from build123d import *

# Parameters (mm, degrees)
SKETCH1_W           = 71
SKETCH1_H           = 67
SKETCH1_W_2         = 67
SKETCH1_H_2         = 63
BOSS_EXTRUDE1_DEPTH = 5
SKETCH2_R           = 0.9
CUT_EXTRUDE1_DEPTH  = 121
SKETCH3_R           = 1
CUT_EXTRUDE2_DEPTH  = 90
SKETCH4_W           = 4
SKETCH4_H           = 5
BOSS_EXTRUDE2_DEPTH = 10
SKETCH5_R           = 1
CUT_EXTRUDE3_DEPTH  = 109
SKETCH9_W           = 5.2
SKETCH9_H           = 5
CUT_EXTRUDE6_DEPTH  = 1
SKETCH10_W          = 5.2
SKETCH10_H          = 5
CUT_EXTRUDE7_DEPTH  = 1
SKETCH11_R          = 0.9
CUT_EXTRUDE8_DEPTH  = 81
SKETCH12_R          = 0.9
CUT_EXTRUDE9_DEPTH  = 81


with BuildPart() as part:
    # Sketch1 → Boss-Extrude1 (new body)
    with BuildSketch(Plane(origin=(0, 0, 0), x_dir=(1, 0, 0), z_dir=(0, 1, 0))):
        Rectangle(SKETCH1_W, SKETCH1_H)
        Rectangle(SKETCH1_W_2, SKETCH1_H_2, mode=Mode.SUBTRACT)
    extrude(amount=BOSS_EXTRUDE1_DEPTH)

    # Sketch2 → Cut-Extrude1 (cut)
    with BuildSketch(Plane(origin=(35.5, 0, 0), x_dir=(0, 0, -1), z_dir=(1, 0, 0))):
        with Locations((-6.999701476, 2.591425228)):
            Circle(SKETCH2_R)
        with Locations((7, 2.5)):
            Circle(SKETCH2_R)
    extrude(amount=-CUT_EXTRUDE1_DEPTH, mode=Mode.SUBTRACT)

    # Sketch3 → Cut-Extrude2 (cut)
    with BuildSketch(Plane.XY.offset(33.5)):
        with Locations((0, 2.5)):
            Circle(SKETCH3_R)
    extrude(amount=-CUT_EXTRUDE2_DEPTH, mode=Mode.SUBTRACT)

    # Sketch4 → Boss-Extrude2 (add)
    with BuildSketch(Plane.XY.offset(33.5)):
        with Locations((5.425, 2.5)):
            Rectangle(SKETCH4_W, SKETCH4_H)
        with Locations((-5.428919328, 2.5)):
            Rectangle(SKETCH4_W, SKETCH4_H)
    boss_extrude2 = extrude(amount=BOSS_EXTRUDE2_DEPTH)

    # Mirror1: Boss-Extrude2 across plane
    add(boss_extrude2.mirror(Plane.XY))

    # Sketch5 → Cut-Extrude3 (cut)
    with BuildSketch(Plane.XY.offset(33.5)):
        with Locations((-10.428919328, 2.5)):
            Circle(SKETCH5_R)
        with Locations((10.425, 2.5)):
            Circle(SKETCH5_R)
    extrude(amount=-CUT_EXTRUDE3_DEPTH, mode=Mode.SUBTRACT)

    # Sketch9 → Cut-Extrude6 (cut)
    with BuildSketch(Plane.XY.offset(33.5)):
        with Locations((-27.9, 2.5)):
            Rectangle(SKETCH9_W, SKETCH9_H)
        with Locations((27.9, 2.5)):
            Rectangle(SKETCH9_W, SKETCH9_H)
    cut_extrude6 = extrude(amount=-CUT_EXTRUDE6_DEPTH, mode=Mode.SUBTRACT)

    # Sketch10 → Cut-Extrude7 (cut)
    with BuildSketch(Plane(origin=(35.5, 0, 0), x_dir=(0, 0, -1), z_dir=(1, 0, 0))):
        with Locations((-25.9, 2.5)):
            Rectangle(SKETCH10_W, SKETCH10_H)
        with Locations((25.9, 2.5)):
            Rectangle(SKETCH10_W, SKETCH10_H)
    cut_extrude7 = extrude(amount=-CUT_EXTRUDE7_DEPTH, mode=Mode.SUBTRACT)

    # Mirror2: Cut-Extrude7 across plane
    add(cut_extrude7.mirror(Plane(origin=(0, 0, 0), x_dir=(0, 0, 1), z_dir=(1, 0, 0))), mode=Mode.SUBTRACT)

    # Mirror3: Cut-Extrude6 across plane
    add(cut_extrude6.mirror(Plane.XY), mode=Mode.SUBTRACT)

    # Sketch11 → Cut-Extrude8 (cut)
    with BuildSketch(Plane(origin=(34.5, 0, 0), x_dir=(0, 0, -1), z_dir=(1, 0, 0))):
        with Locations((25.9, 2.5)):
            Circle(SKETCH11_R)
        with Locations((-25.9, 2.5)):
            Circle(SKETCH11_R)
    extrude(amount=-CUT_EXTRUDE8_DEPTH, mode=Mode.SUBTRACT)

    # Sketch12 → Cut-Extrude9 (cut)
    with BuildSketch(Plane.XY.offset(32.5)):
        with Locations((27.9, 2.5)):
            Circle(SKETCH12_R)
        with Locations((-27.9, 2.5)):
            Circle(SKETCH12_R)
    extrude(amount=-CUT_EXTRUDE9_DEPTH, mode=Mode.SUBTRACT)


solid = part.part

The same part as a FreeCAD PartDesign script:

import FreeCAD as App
import Part
import Sketcher
from FreeCAD import Vector


def add_polygon(sketch, points):
    """Adds a closed chain of lines whose ends are joined by coincident constraints."""
    first, n = sketch.GeometryCount, len(points)
    for a, b in zip(points, points[1:] + points[:1]):
        sketch.addGeometry(Part.LineSegment(App.Vector(*a, 0), App.Vector(*b, 0)), False)
    for i in range(n):
        sketch.addConstraint(Sketcher.Constraint("Coincident", first + i, 2, first + (i + 1) % n, 1))

doc = App.newDocument("Part")
params = doc.addObject("Spreadsheet::Sheet", "Params")
for row, (alias, value) in enumerate([
    ("sketch1_width", "71 mm"),
    ("sketch1_width2", "67 mm"),
    ("sketch1_height", "63 mm"),
    ("pad1_length", "5 mm"),
    ("sketch2_diameter", "1.8 mm"),
    ("pocket1_length", "121 mm"),
    ("sketch3_diameter", "2 mm"),
    ("pocket2_length", "90 mm"),
    ("sketch4_width", "4 mm"),
    ("sketch4_height", "5 mm"),
    ("pad2_length", "10 mm"),
    ("sketch5_diameter", "2 mm"),
    ("pocket3_length", "109 mm"),
    ("sketch6_height", "5 mm"),
    ("sketch6_width", "5.2 mm"),
    ("pocket4_length", "1 mm"),
    ("sketch7_width", "5 mm"),
    ("sketch7_height", "5.2 mm"),
    ("pocket5_length", "1 mm"),
    ("sketch8_diameter", "1.8 mm"),
    ("pocket6_length", "81 mm"),
    ("sketch9_diameter", "1.8 mm"),
    ("pocket7_length", "81 mm"),
], start=1):
    params.set(f"A{row}", alias)
    params.set(f"B{row}", "=" + value)
    params.setAlias(f"B{row}", alias)

body = doc.addObject("PartDesign::Body", "Body")

# Sketch on XZ plane
sketch1 = body.newObject("Sketcher::SketchObject", "Sketch")
sketch1.AttachmentSupport = (doc.getObject("XZ_Plane"), [""])
sketch1.MapMode = "FlatFace"
add_polygon(sketch1, [(-35.5, -33.5), (-35.5, 33.5), (35.5, 33.5), (35.5, -33.5)])  # lines 0-3
add_polygon(sketch1, [(33.5, 31.5), (-33.5, 31.5), (-33.5, -31.5), (33.5, -31.5)])  # lines 4-7
sketch1.addConstraint(Sketcher.Constraint("Vertical", 0))
sketch1.addConstraint(Sketcher.Constraint("Horizontal", 1))
sketch1.addConstraint(Sketcher.Constraint("Vertical", 2))
sketch1.addConstraint(Sketcher.Constraint("Horizontal", 3))
sketch1.addConstraint(Sketcher.Constraint("Horizontal", 4))
sketch1.addConstraint(Sketcher.Constraint("Vertical", 5))
sketch1.addConstraint(Sketcher.Constraint("Horizontal", 6))
sketch1.addConstraint(Sketcher.Constraint("Vertical", 7))
sketch1.addConstraint(Sketcher.Constraint("Symmetric", 0, 2, 2, 2, -1, 1))
sketch1.addConstraint(Sketcher.Constraint("Symmetric", 4, 2, 6, 2, -1, 1))
sketch1.addConstraint(Sketcher.Constraint("Equal", 6, 0))
sketch1.addConstraint(Sketcher.Constraint("DistanceX", 1, 1, 1, 2, 71.0))
sketch1.addConstraint(Sketcher.Constraint("DistanceX", 4, 2, 4, 1, 67.0))
sketch1.addConstraint(Sketcher.Constraint("DistanceY", 5, 2, 5, 1, 63.0))
sketch1.setExpression("Constraints[19]", "Params.sketch1_width")
sketch1.setExpression("Constraints[20]", "Params.sketch1_width2")
sketch1.setExpression("Constraints[21]", "Params.sketch1_height")
pad1 = body.newObject("PartDesign::Pad", "Pad")
pad1.Profile = sketch1
pad1.setExpression("Length", "Params.pad1_length")
pad1.Reversed = True

# Sketch on YZ plane
sketch2 = body.newObject("Sketcher::SketchObject", "Sketch001")
sketch2.AttachmentSupport = (doc.getObject("YZ_Plane"), [""])
sketch2.MapMode = "FlatFace"
sketch2.AttachmentOffset = App.Placement(Vector(0, 0, 35.5), App.Rotation())
sketch2.addGeometry(Part.Circle(Vector(2.591425, 6.999701, 0), Vector(0, 0, 1), 0.9), False)
sketch2.addGeometry(Part.Circle(Vector(2.5, -7, 0), Vector(0, 0, 1), 0.9), False)
sketch2.addConstraint(Sketcher.Constraint("Equal", 0, 1))
sketch2.addConstraint(Sketcher.Constraint("Diameter", 0, 1.8))
sketch2.addConstraint(Sketcher.Constraint("DistanceY", 1, 3, -1, 1, 7.0))
sketch2.addConstraint(Sketcher.Constraint("DistanceX", -1, 1, 1, 3, 2.5))
sketch2.addConstraint(Sketcher.Constraint("DistanceY", -1, 1, 0, 3, 6.999701))
sketch2.addConstraint(Sketcher.Constraint("DistanceX", -1, 1, 0, 3, 2.591425))
sketch2.setExpression("Constraints[1]", "Params.sketch2_diameter")
pocket1 = body.newObject("PartDesign::Pocket", "Pocket")
pocket1.Profile = sketch2
pocket1.setExpression("Length", "Params.pocket1_length")

# Sketch on XY plane
sketch3 = body.newObject("Sketcher::SketchObject", "Sketch002")
sketch3.AttachmentSupport = (doc.getObject("XY_Plane"), [""])
sketch3.MapMode = "FlatFace"
sketch3.AttachmentOffset = App.Placement(Vector(0, 0, 33.5), App.Rotation())
sketch3.addGeometry(Part.Circle(Vector(0, 2.5, 0), Vector(0, 0, 1), 1), False)
sketch3.addConstraint(Sketcher.Constraint("PointOnObject", 0, 3, -2))
sketch3.addConstraint(Sketcher.Constraint("Diameter", 0, 2.0))
sketch3.addConstraint(Sketcher.Constraint("DistanceY", -1, 1, 0, 3, 2.5))
sketch3.setExpression("Constraints[1]", "Params.sketch3_diameter")
pocket2 = body.newObject("PartDesign::Pocket", "Pocket001")
pocket2.Profile = sketch3
pocket2.setExpression("Length", "Params.pocket2_length")

# Sketch on XY plane
sketch4 = body.newObject("Sketcher::SketchObject", "Sketch003")
sketch4.AttachmentSupport = (doc.getObject("XY_Plane"), [""])
sketch4.MapMode = "FlatFace"
sketch4.AttachmentOffset = App.Placement(Vector(0, 0, 33.5), App.Rotation())
add_polygon(sketch4, [(3.425, 5), (3.425, 0), (7.425, 0), (7.425, 5)])  # lines 0-3
add_polygon(sketch4, [(-7.428919, 5), (-7.428919, 0), (-3.428919, 0), (-3.428919, 5)])  # lines 4-7
sketch4.addConstraint(Sketcher.Constraint("Vertical", 0))
sketch4.addConstraint(Sketcher.Constraint("Horizontal", 1))
sketch4.addConstraint(Sketcher.Constraint("Vertical", 2))
sketch4.addConstraint(Sketcher.Constraint("Horizontal", 3))
sketch4.addConstraint(Sketcher.Constraint("Vertical", 4))
sketch4.addConstraint(Sketcher.Constraint("Horizontal", 5))
sketch4.addConstraint(Sketcher.Constraint("Vertical", 6))
sketch4.addConstraint(Sketcher.Constraint("Horizontal", 7))
sketch4.addConstraint(Sketcher.Constraint("PointOnObject", 0, 2, -1))
sketch4.addConstraint(Sketcher.Constraint("PointOnObject", 4, 2, -1))
sketch4.addConstraint(Sketcher.Constraint("Horizontal", 3, 2, 6, 2))
sketch4.addConstraint(Sketcher.Constraint("Equal", 3, 5))
sketch4.addConstraint(Sketcher.Constraint("DistanceX", 1, 1, 1, 2, 4.0))
sketch4.addConstraint(Sketcher.Constraint("DistanceY", 0, 2, 0, 1, 5.0))
sketch4.addConstraint(Sketcher.Constraint("DistanceX", -1, 1, 0, 2, 3.425))
sketch4.addConstraint(Sketcher.Constraint("DistanceX", 4, 2, -1, 1, 7.428919))
sketch4.setExpression("Constraints[20]", "Params.sketch4_width")
sketch4.setExpression("Constraints[21]", "Params.sketch4_height")
pad2 = body.newObject("PartDesign::Pad", "Pad001")
pad2.Profile = sketch4
pad2.setExpression("Length", "Params.pad2_length")
doc.recompute()

mirrored = body.newObject("PartDesign::Mirrored", "Mirrored")
mirrored.Originals = [pad2]
mirrored.MirrorPlane = (doc.getObject("XY_Plane"), [""])
body.Tip = mirrored

# Sketch on XY plane
sketch5 = body.newObject("Sketcher::SketchObject", "Sketch004")
sketch5.AttachmentSupport = (doc.getObject("XY_Plane"), [""])
sketch5.MapMode = "FlatFace"
sketch5.AttachmentOffset = App.Placement(Vector(0, 0, 33.5), App.Rotation())
sketch5.addGeometry(Part.Circle(Vector(-10.428919, 2.5, 0), Vector(0, 0, 1), 1), False)
sketch5.addGeometry(Part.Circle(Vector(10.425, 2.5, 0), Vector(0, 0, 1), 1), False)
sketch5.addConstraint(Sketcher.Constraint("Equal", 0, 1))
sketch5.addConstraint(Sketcher.Constraint("Horizontal", 0, 3, 1, 3))
sketch5.addConstraint(Sketcher.Constraint("Diameter", 0, 2.0))
sketch5.addConstraint(Sketcher.Constraint("DistanceY", -1, 1, 0, 3, 2.5))
sketch5.addConstraint(Sketcher.Constraint("DistanceX", -1, 1, 1, 3, 10.425))
sketch5.addConstraint(Sketcher.Constraint("DistanceX", 0, 3, -1, 1, 10.428919))
sketch5.setExpression("Constraints[2]", "Params.sketch5_diameter")
pocket3 = body.newObject("PartDesign::Pocket", "Pocket002")
pocket3.Profile = sketch5
pocket3.setExpression("Length", "Params.pocket3_length")

# Sketch on XY plane
sketch6 = body.newObject("Sketcher::SketchObject", "Sketch005")
sketch6.AttachmentSupport = (doc.getObject("XY_Plane"), [""])
sketch6.MapMode = "FlatFace"
sketch6.AttachmentOffset = App.Placement(Vector(0, 0, 33.5), App.Rotation())
add_polygon(sketch6, [(-30.5, 5), (-30.5, 0), (-25.3, 0), (-25.3, 5)])  # lines 0-3
add_polygon(sketch6, [(25.3, 5), (25.3, 0), (30.5, 0), (30.5, 5)])  # lines 4-7
sketch6.addConstraint(Sketcher.Constraint("Vertical", 0))
sketch6.addConstraint(Sketcher.Constraint("Horizontal", 1))
sketch6.addConstraint(Sketcher.Constraint("Vertical", 2))
sketch6.addConstraint(Sketcher.Constraint("Horizontal", 3))
sketch6.addConstraint(Sketcher.Constraint("Vertical", 4))
sketch6.addConstraint(Sketcher.Constraint("Horizontal", 5))
sketch6.addConstraint(Sketcher.Constraint("Vertical", 6))
sketch6.addConstraint(Sketcher.Constraint("Horizontal", 7))
sketch6.addConstraint(Sketcher.Constraint("Symmetric", 1, 2, 4, 2, -1, 1))
sketch6.addConstraint(Sketcher.Constraint("Symmetric", 0, 2, 5, 2, -2))
sketch6.addConstraint(Sketcher.Constraint("Horizontal", 3, 2, 6, 2))
sketch6.addConstraint(Sketcher.Constraint("DistanceY", 0, 2, 0, 1, 5.0))
sketch6.addConstraint(Sketcher.Constraint("DistanceX", 1, 1, 1, 2, 5.2))
sketch6.addConstraint(Sketcher.Constraint("DistanceX", 0, 2, 5, 2, 61.0))
sketch6.setExpression("Constraints[19]", "Params.sketch6_height")
sketch6.setExpression("Constraints[20]", "Params.sketch6_width")
pocket4 = body.newObject("PartDesign::Pocket", "Pocket003")
pocket4.Profile = sketch6
pocket4.setExpression("Length", "Params.pocket4_length")

# Sketch on YZ plane
sketch7 = body.newObject("Sketcher::SketchObject", "Sketch006")
sketch7.AttachmentSupport = (doc.getObject("YZ_Plane"), [""])
sketch7.MapMode = "FlatFace"
sketch7.AttachmentOffset = App.Placement(Vector(0, 0, 35.5), App.Rotation())
add_polygon(sketch7, [(5, 28.5), (0, 28.5), (0, 23.3), (5, 23.3)])  # lines 0-3
add_polygon(sketch7, [(5, -23.3), (0, -23.3), (0, -28.5), (5, -28.5)])  # lines 4-7
sketch7.addConstraint(Sketcher.Constraint("Horizontal", 0))
sketch7.addConstraint(Sketcher.Constraint("Vertical", 1))
sketch7.addConstraint(Sketcher.Constraint("Horizontal", 2))
sketch7.addConstraint(Sketcher.Constraint("Vertical", 3))
sketch7.addConstraint(Sketcher.Constraint("Horizontal", 4))
sketch7.addConstraint(Sketcher.Constraint("Vertical", 5))
sketch7.addConstraint(Sketcher.Constraint("Horizontal", 6))
sketch7.addConstraint(Sketcher.Constraint("Vertical", 7))
sketch7.addConstraint(Sketcher.Constraint("Symmetric", 1, 2, 4, 2, -1, 1))
sketch7.addConstraint(Sketcher.Constraint("Symmetric", 0, 2, 5, 2, -1))
sketch7.addConstraint(Sketcher.Constraint("Vertical", 3, 2, 6, 2))
sketch7.addConstraint(Sketcher.Constraint("DistanceX", 0, 2, 0, 1, 5.0))
sketch7.addConstraint(Sketcher.Constraint("DistanceY", 1, 2, 1, 1, 5.2))
sketch7.addConstraint(Sketcher.Constraint("DistanceY", 5, 2, 0, 2, 57.0))
sketch7.setExpression("Constraints[19]", "Params.sketch7_width")
sketch7.setExpression("Constraints[20]", "Params.sketch7_height")
pocket5 = body.newObject("PartDesign::Pocket", "Pocket004")
pocket5.Profile = sketch7
pocket5.setExpression("Length", "Params.pocket5_length")
doc.recompute()

mirrored2 = body.newObject("PartDesign::Mirrored", "Mirrored001")
mirrored2.Originals = [pocket5]
mirrored2.MirrorPlane = (doc.getObject("YZ_Plane"), [""])
body.Tip = mirrored2
doc.recompute()

mirrored3 = body.newObject("PartDesign::Mirrored", "Mirrored002")
mirrored3.Originals = [pocket4]
mirrored3.MirrorPlane = (doc.getObject("XY_Plane"), [""])
body.Tip = mirrored3

# Sketch on YZ plane
sketch8 = body.newObject("Sketcher::SketchObject", "Sketch007")
sketch8.AttachmentSupport = (doc.getObject("YZ_Plane"), [""])
sketch8.MapMode = "FlatFace"
sketch8.AttachmentOffset = App.Placement(Vector(0, 0, 34.5), App.Rotation())
sketch8.addGeometry(Part.Circle(Vector(2.5, -25.9, 0), Vector(0, 0, 1), 0.9), False)
sketch8.addGeometry(Part.Circle(Vector(2.5, 25.9, 0), Vector(0, 0, 1), 0.9), False)
sketch8.addConstraint(Sketcher.Constraint("Equal", 0, 1))
sketch8.addConstraint(Sketcher.Constraint("Symmetric", 0, 3, 1, 3, -1))
sketch8.addConstraint(Sketcher.Constraint("Diameter", 0, 1.8))
sketch8.addConstraint(Sketcher.Constraint("DistanceX", -1, 1, 0, 3, 2.5))
sketch8.addConstraint(Sketcher.Constraint("DistanceY", 0, 3, -1, 1, 25.9))
sketch8.setExpression("Constraints[2]", "Params.sketch8_diameter")
pocket6 = body.newObject("PartDesign::Pocket", "Pocket005")
pocket6.Profile = sketch8
pocket6.setExpression("Length", "Params.pocket6_length")

# Sketch on XY plane
sketch9 = body.newObject("Sketcher::SketchObject", "Sketch008")
sketch9.AttachmentSupport = (doc.getObject("XY_Plane"), [""])
sketch9.MapMode = "FlatFace"
sketch9.AttachmentOffset = App.Placement(Vector(0, 0, 32.5), App.Rotation())
sketch9.addGeometry(Part.Circle(Vector(27.9, 2.5, 0), Vector(0, 0, 1), 0.9), False)
sketch9.addGeometry(Part.Circle(Vector(-27.9, 2.5, 0), Vector(0, 0, 1), 0.9), False)
sketch9.addConstraint(Sketcher.Constraint("Equal", 0, 1))
sketch9.addConstraint(Sketcher.Constraint("Symmetric", 0, 3, 1, 3, -2))
sketch9.addConstraint(Sketcher.Constraint("Diameter", 0, 1.8))
sketch9.addConstraint(Sketcher.Constraint("DistanceX", -1, 1, 0, 3, 27.9))
sketch9.addConstraint(Sketcher.Constraint("DistanceY", -1, 1, 0, 3, 2.5))
sketch9.setExpression("Constraints[2]", "Params.sketch9_diameter")
pocket7 = body.newObject("PartDesign::Pocket", "Pocket006")
pocket7.Profile = sketch9
pocket7.setExpression("Length", "Params.pocket7_length")

doc.recompute()
